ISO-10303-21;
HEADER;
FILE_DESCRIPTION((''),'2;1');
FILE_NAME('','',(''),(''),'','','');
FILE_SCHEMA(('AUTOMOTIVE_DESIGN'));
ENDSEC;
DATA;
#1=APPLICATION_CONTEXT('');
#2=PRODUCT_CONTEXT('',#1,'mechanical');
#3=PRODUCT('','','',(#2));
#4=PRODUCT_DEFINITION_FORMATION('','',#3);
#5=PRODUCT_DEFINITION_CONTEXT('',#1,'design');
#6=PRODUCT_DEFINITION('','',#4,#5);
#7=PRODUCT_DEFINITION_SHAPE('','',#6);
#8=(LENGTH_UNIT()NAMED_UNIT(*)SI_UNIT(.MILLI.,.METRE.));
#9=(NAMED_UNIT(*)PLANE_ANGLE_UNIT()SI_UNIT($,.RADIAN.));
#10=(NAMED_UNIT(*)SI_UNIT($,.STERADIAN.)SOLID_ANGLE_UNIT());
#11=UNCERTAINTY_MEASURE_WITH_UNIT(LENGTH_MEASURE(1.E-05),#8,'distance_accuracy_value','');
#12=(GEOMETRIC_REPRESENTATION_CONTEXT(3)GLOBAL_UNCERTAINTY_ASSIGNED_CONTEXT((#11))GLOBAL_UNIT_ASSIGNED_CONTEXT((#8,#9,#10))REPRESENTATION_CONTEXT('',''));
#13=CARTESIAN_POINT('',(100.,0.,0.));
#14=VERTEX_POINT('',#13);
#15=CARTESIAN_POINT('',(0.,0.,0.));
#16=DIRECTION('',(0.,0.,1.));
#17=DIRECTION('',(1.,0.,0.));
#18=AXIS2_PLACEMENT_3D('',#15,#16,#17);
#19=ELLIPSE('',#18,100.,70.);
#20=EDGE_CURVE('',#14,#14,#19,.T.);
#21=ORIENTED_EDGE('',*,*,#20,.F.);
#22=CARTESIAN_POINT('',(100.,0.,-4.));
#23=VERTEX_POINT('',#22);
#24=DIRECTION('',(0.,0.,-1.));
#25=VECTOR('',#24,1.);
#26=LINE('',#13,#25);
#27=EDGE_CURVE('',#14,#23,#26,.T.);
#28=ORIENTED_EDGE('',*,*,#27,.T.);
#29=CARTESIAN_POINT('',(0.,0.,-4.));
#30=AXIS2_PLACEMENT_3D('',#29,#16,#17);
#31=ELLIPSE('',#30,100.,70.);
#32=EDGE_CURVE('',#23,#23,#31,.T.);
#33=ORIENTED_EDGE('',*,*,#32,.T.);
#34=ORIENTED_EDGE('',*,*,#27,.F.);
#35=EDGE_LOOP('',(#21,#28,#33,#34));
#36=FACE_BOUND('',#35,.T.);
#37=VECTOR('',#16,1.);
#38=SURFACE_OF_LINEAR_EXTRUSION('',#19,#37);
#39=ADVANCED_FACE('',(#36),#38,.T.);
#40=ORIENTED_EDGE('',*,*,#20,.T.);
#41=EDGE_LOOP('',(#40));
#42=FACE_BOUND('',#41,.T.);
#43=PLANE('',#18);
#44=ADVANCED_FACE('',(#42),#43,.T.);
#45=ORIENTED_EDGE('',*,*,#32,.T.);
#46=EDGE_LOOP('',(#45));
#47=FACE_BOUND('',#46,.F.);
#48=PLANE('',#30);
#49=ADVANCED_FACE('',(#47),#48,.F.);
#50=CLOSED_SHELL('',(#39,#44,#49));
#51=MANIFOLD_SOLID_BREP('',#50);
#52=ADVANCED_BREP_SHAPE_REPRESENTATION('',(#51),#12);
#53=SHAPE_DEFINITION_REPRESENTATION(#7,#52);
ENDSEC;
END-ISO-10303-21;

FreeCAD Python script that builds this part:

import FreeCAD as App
import Part
import Sketcher

V = App.Vector

doc = App.newDocument("Part")
body = doc.addObject("PartDesign::Body", "Body")

# Sketch on XY plane
sketch1 = body.newObject("Sketcher::SketchObject", "Sketch")
sketch1.AttachmentSupport = (doc.getObject("XY_Plane"), [""])
sketch1.MapMode = "FlatFace"
sketch1.addGeometry(Part.Ellipse(V(100, 0, 0), V(0, 70, 0), V(0, 0, 0)), False)
sketch1.addConstraint(Sketcher.Constraint("Block", 0))
pad1 = body.newObject("PartDesign::Pad", "Pad")
pad1.Profile = sketch1
pad1.Length = 4
pad1.Reversed = True

doc.recompute()
